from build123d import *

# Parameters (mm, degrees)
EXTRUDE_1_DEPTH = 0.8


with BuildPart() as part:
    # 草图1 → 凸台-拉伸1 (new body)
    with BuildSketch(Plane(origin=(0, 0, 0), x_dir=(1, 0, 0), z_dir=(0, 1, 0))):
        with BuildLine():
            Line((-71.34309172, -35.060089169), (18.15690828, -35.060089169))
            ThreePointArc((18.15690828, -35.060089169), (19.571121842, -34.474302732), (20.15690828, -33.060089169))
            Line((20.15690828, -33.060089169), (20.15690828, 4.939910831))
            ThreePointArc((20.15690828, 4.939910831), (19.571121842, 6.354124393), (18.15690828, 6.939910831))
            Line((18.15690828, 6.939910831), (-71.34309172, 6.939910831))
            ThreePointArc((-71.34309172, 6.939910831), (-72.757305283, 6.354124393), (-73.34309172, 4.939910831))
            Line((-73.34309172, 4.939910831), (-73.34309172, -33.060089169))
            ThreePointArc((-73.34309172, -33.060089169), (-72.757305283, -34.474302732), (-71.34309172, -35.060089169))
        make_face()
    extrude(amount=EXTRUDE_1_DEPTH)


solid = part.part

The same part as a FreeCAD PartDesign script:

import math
import FreeCAD as App
import Part
import Sketcher
Q = App.Units.Quantity

doc = App.newDocument("Part")
body = doc.addObject("PartDesign::Body", "Body")

# Sketch on XZ plane
sketch1 = body.newObject("Sketcher::SketchObject", "Sketch")
sketch1.AttachmentSupport = (doc.getObject("XZ_Plane"), [""])
sketch1.MapMode = "FlatFace"
sketch1.addGeometry(Part.LineSegment(App.Vector(-71.3, 35.1, 0), App.Vector(18.2, 35.1, 0)), False)
sketch1.addGeometry(Part.ArcOfCircle(Part.Circle(App.Vector(18.2, 33.1, 0), App.Vector(0, 0, 1), 2), math.radians(0), math.radians(90)), False)
sketch1.addGeometry(Part.LineSegment(App.Vector(20.2, 33.1, 0), App.Vector(20.2, -4.9, 0)), False)
sketch1.addGeometry(Part.ArcOfCircle(Part.Circle(App.Vector(18.2, -4.9, 0), App.Vector(0, 0, 1), 2), math.radians(-90), math.radians(0)), False)
sketch1.addGeometry(Part.LineSegment(App.Vector(18.2, -6.9, 0), App.Vector(-71.3, -6.9, 0)), False)
sketch1.addGeometry(Part.ArcOfCircle(Part.Circle(App.Vector(-71.3, -4.9, 0), App.Vector(0, 0, 1), 2), math.radians(180), math.radians(270)), False)
sketch1.addGeometry(Part.LineSegment(App.Vector(-73.3, -4.9, 0), App.Vector(-73.3, 33.1, 0)), False)
sketch1.addGeometry(Part.ArcOfCircle(Part.Circle(App.Vector(-71.3, 33.1, 0), App.Vector(0, 0, 1), 2), math.radians(90), math.radians(180)), False)
sketch1.addConstraint(Sketcher.Constraint("Tangent", 0, 2, 1, 2))
sketch1.addConstraint(Sketcher.Constraint("Tangent", 1, 1, 2, 1))
sketch1.addConstraint(Sketcher.Constraint("Tangent", 2, 2, 3, 2))
sketch1.addConstraint(Sketcher.Constraint("Tangent", 3, 1, 4, 1))
sketch1.addConstraint(Sketcher.Constraint("Tangent", 4, 2, 5, 2))
sketch1.addConstraint(Sketcher.Constraint("Tangent", 5, 1, 6, 1))
sketch1.addConstraint(Sketcher.Constraint("Tangent", 6, 2, 7, 2))
sketch1.addConstraint(Sketcher.Constraint("Tangent", 7, 1, 0, 1))
sketch1.addConstraint(Sketcher.Constraint("Horizontal", 0))
sketch1.addConstraint(Sketcher.Constraint("Vertical", 2))
sketch1.addConstraint(Sketcher.Constraint("Horizontal", 4))
sketch1.addConstraint(Sketcher.Constraint("Vertical", 6))
sketch1.addConstraint(Sketcher.Constraint("Equal", 1, 3))
sketch1.addConstraint(Sketcher.Constraint("Equal", 3, 5))
sketch1.addConstraint(Sketcher.Constraint("Equal", 5, 7))
sketch1.addConstraint(Sketcher.Constraint("Radius", 1, Q("2 mm")))
sketch1.addConstraint(Sketcher.Constraint("DistanceY", 2, 2, 2, 1, Q("38 mm")))
sketch1.addConstraint(Sketcher.Constraint("DistanceX", 0, 1, 0, 2, Q("89.5 mm")))
sketch1.addConstraint(Sketcher.Constraint("DistanceX", -1, 1, 1, 3, Q("18.156908 mm")))
sketch1.addConstraint(Sketcher.Constraint("DistanceY", -1, 1, 1, 3, Q("33.060089 mm")))
pad1 = body.newObject("PartDesign::Pad", "Pad")
pad1.Profile = sketch1
pad1.Length = 0.8
pad1.Reversed = True

doc.recompute()
